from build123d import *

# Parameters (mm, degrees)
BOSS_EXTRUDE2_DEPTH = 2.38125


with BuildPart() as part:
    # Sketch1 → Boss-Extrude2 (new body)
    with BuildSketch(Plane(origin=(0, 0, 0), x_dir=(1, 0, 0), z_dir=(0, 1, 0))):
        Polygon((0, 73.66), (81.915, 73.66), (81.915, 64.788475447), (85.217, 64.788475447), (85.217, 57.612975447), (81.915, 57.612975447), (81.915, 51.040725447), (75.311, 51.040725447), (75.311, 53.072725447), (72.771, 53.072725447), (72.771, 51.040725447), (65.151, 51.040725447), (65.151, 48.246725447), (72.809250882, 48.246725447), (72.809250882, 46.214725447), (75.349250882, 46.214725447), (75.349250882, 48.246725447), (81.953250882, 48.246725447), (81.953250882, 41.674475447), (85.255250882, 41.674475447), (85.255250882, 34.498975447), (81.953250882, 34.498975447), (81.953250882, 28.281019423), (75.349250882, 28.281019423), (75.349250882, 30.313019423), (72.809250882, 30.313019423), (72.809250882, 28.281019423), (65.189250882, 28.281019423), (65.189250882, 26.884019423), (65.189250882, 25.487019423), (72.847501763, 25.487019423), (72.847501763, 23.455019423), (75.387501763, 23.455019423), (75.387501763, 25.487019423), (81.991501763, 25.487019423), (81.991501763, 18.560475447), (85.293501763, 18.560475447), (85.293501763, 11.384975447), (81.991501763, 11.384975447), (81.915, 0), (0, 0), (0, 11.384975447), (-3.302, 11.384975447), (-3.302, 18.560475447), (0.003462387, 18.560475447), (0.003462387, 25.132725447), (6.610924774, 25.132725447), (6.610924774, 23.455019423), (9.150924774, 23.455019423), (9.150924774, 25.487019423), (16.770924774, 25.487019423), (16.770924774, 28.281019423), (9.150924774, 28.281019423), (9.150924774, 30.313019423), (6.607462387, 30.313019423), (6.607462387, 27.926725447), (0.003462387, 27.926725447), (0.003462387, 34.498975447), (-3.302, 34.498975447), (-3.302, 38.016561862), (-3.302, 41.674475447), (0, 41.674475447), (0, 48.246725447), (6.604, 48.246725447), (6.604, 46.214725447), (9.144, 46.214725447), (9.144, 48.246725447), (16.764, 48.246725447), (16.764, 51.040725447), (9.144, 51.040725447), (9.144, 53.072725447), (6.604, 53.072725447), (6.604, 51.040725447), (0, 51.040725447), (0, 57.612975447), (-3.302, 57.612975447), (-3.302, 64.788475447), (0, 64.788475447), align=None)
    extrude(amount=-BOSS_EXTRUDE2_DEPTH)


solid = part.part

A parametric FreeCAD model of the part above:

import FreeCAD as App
import Part
import Sketcher
from FreeCAD import Vector
Q = App.Units.Quantity

doc = App.newDocument("Part")
body = doc.addObject("PartDesign::Body", "Body")

sketch1 = body.newObject("Sketcher::SketchObject", "Sketch")
sketch1.AttachmentSupport = (doc.getObject("XZ_Plane"), [""])
sketch1.MapMode = "FlatFace"
sketch1.addGeometry([
    Part.LineSegment(Vector(81.9, -73.7, 0), Vector(0, -73.7, 0)),
    Part.LineSegment(Vector(0, -73.7, 0), Vector(0, -64.8, 0)),
    Part.LineSegment(Vector(0, -64.8, 0), Vector(-3.3, -64.8, 0)),
    Part.LineSegment(Vector(-3.3, -64.8, 0), Vector(-3.3, -57.6, 0)),
    Part.LineSegment(Vector(-3.3, -57.6, 0), Vector(0, -57.6, 0)),
    Part.LineSegment(Vector(0, -57.6, 0), Vector(0, -51, 0)),
    Part.LineSegment(Vector(0, -51, 0), Vector(6.6, -51, 0)),
    Part.LineSegment(Vector(6.6, -51, 0), Vector(6.6, -53.1, 0)),
    Part.LineSegment(Vector(6.6, -53.1, 0), Vector(9.1, -53.1, 0)),
    Part.LineSegment(Vector(9.1, -53.1, 0), Vector(9.1, -51, 0)),
    Part.LineSegment(Vector(9.1, -51, 0), Vector(16.8, -51, 0)),
    Part.LineSegment(Vector(16.8, -51, 0), Vector(16.8, -48.2, 0)),
    Part.LineSegment(Vector(16.8, -48.2, 0), Vector(9.1, -48.2, 0)),
    Part.LineSegment(Vector(9.1, -48.2, 0), Vector(9.1, -46.2, 0)),
    Part.LineSegment(Vector(9.1, -46.2, 0), Vector(6.6, -46.2, 0)),
    Part.LineSegment(Vector(6.6, -46.2, 0), Vector(6.6, -48.2, 0)),
    Part.LineSegment(Vector(6.6, -48.2, 0), Vector(0, -48.2, 0)),
    Part.LineSegment(Vector(0, -48.2, 0), Vector(0, -41.7, 0)),
    Part.LineSegment(Vector(0, -41.7, 0), Vector(-3.3, -41.7, 0)),
    Part.LineSegment(Vector(-3.3, -41.7, 0), Vector(-3.3, -34.5, 0)),
    Part.LineSegment(Vector(-3.3, -34.5, 0), Vector(0, -34.5, 0)),
    Part.LineSegment(Vector(0, -34.5, 0), Vector(0, -27.9, 0)),
    Part.LineSegment(Vector(0, -27.9, 0), Vector(6.6, -27.9, 0)),
    Part.LineSegment(Vector(6.6, -27.9, 0), Vector(6.6, -30.3, 0)),
    Part.LineSegment(Vector(6.6, -30.3, 0), Vector(9.2, -30.3, 0)),
    Part.LineSegment(Vector(9.2, -30.3, 0), Vector(9.2, -28.3, 0)),
    Part.LineSegment(Vector(9.2, -28.3, 0), Vector(16.8, -28.3, 0)),
    Part.LineSegment(Vector(16.8, -28.3, 0), Vector(16.8, -25.5, 0)),
    Part.LineSegment(Vector(16.8, -25.5, 0), Vector(9.2, -25.5, 0)),
    Part.LineSegment(Vector(9.2, -25.5, 0), Vector(9.2, -23.5, 0)),
    Part.LineSegment(Vector(9.2, -23.5, 0), Vector(6.6, -23.5, 0)),
    Part.LineSegment(Vector(6.6, -23.5, 0), Vector(6.6, -25.1, 0)),
    Part.LineSegment(Vector(6.6, -25.1, 0), Vector(0, -25.1, 0)),
    Part.LineSegment(Vector(0, -25.1, 0), Vector(0, -18.6, 0)),
    Part.LineSegment(Vector(0, -18.6, 0), Vector(-3.3, -18.6, 0)),
    Part.LineSegment(Vector(-3.3, -18.6, 0), Vector(-3.3, -11.4, 0)),
    Part.LineSegment(Vector(-3.3, -11.4, 0), Vector(0, -11.4, 0)),
    Part.LineSegment(Vector(0, -11.4, 0), Vector(0, 0, 0)),
    Part.LineSegment(Vector(0, 0, 0), Vector(81.9, 0, 0)),
    Part.LineSegment(Vector(81.9, 0, 0), Vector(82, -11.4, 0)),
    Part.LineSegment(Vector(82, -11.4, 0), Vector(85.3, -11.4, 0)),
    Part.LineSegment(Vector(85.3, -11.4, 0), Vector(85.3, -18.6, 0)),
    Part.LineSegment(Vector(85.3, -18.6, 0), Vector(82, -18.6, 0)),
    Part.LineSegment(Vector(82, -18.6, 0), Vector(82, -25.5, 0)),
    Part.LineSegment(Vector(82, -25.5, 0), Vector(75.4, -25.5, 0)),
    Part.LineSegment(Vector(75.4, -25.5, 0), Vector(75.4, -23.5, 0)),
    Part.LineSegment(Vector(75.4, -23.5, 0), Vector(72.8, -23.5, 0)),
    Part.LineSegment(Vector(72.8, -23.5, 0), Vector(72.8, -25.5, 0)),
    Part.LineSegment(Vector(72.8, -25.5, 0), Vector(65.2, -25.5, 0)),
    Part.LineSegment(Vector(65.2, -25.5, 0), Vector(65.2, -28.3, 0)),
    Part.LineSegment(Vector(65.2, -28.3, 0), Vector(72.8, -28.3, 0)),
    Part.LineSegment(Vector(72.8, -28.3, 0), Vector(72.8, -30.3, 0)),
    Part.LineSegment(Vector(72.8, -30.3, 0), Vector(75.3, -30.3, 0)),
    Part.LineSegment(Vector(75.3, -30.3, 0), Vector(75.3, -28.3, 0)),
    Part.LineSegment(Vector(75.3, -28.3, 0), Vector(82, -28.3, 0)),
    Part.LineSegment(Vector(82, -28.3, 0), Vector(82, -34.5, 0)),
    Part.LineSegment(Vector(82, -34.5, 0), Vector(85.3, -34.5, 0)),
    Part.LineSegment(Vector(85.3, -34.5, 0), Vector(85.3, -41.7, 0)),
    Part.LineSegment(Vector(85.3, -41.7, 0), Vector(82, -41.7, 0)),
    Part.LineSegment(Vector(82, -41.7, 0), Vector(82, -48.2, 0)),
    Part.LineSegment(Vector(82, -48.2, 0), Vector(75.3, -48.2, 0)),
    Part.LineSegment(Vector(75.3, -48.2, 0), Vector(75.3, -46.2, 0)),
    Part.LineSegment(Vector(75.3, -46.2, 0), Vector(72.8, -46.2, 0)),
    Part.LineSegment(Vector(72.8, -46.2, 0), Vector(72.8, -48.2, 0)),
    Part.LineSegment(Vector(72.8, -48.2, 0), Vector(65.2, -48.2, 0)),
    Part.LineSegment(Vector(65.2, -48.2, 0), Vector(65.2, -51, 0)),
    Part.LineSegment(Vector(65.2, -51, 0), Vector(72.8, -51, 0)),
    Part.LineSegment(Vector(72.8, -51, 0), Vector(72.8, -53.1, 0)),
    Part.LineSegment(Vector(72.8, -53.1, 0), Vector(75.3, -53.1, 0)),
    Part.LineSegment(Vector(75.3, -53.1, 0), Vector(75.3, -51, 0)),
    Part.LineSegment(Vector(75.3, -51, 0), Vector(81.9, -51, 0)),
    Part.LineSegment(Vector(81.9, -51, 0), Vector(81.9, -57.6, 0)),
    Part.LineSegment(Vector(81.9, -57.6, 0), Vector(85.2, -57.6, 0)),
    Part.LineSegment(Vector(85.2, -57.6, 0), Vector(85.2, -64.8, 0)),
    Part.LineSegment(Vector(85.2, -64.8, 0), Vector(81.9, -64.8, 0)),
    Part.LineSegment(Vector(81.9, -64.8, 0), Vector(81.9, -73.7, 0)),
], False)
sketch1.addConstraint([
    Sketcher.Constraint("Coincident", 0, 2, 1, 1),
    Sketcher.Constraint("Coincident", 1, 2, 2, 1),
    Sketcher.Constraint("Coincident", 2, 2, 3, 1),
    Sketcher.Constraint("Coincident", 3, 2, 4, 1),
    Sketcher.Constraint("Coincident", 4, 2, 5, 1),
    Sketcher.Constraint("Coincident", 5, 2, 6, 1),
    Sketcher.Constraint("Coincident", 6, 2, 7, 1),
    Sketcher.Constraint("Coincident", 7, 2, 8, 1),
    Sketcher.Constraint("Coincident", 8, 2, 9, 1),
    Sketcher.Constraint("Coincident", 9, 2, 10, 1),
    Sketcher.Constraint("Coincident", 10, 2, 11, 1),
    Sketcher.Constraint("Coincident", 11, 2, 12, 1),
    Sketcher.Constraint("Coincident", 12, 2, 13, 1),
    Sketcher.Constraint("Coincident", 13, 2, 14, 1),
    Sketcher.Constraint("Coincident", 14, 2, 15, 1),
    Sketcher.Constraint("Coincident", 15, 2, 16, 1),
    Sketcher.Constraint("Coincident", 16, 2, 17, 1),
    Sketcher.Constraint("Coincident", 17, 2, 18, 1),
    Sketcher.Constraint("Coincident", 18, 2, 19, 1),
    Sketcher.Constraint("Coincident", 19, 2, 20, 1),
    Sketcher.Constraint("Coincident", 20, 2, 21, 1),
    Sketcher.Constraint("Coincident", 21, 2, 22, 1),
    Sketcher.Constraint("Coincident", 22, 2, 23, 1),
    Sketcher.Constraint("Coincident", 23, 2, 24, 1),
    Sketcher.Constraint("Coincident", 24, 2, 25, 1),
    Sketcher.Constraint("Coincident", 25, 2, 26, 1),
    Sketcher.Constraint("Coincident", 26, 2, 27, 1),
    Sketcher.Constraint("Coincident", 27, 2, 28, 1),
    Sketcher.Constraint("Coincident", 28, 2, 29, 1),
    Sketcher.Constraint("Coincident", 29, 2, 30, 1),
    Sketcher.Constraint("Coincident", 30, 2, 31, 1),
    Sketcher.Constraint("Coincident", 31, 2, 32, 1),
    Sketcher.Constraint("Coincident", 32, 2, 33, 1),
    Sketcher.Constraint("Coincident", 33, 2, 34, 1),
    Sketcher.Constraint("Coincident", 34, 2, 35, 1),
    Sketcher.Constraint("Coincident", 35, 2, 36, 1),
    Sketcher.Constraint("Coincident", 36, 2, 37, 1),
    Sketcher.Constraint("Coincident", 37, 2, 38, 1),
    Sketcher.Constraint("Coincident", 38, 2, 39, 1),
    Sketcher.Constraint("Coincident", 39, 2, 40, 1),
    Sketcher.Constraint("Coincident", 40, 2, 41, 1),
    Sketcher.Constraint("Coincident", 41, 2, 42, 1),
    Sketcher.Constraint("Coincident", 42, 2, 43, 1),
    Sketcher.Constraint("Coincident", 43, 2, 44, 1),
    Sketcher.Constraint("Coincident", 44, 2, 45, 1),
    Sketcher.Constraint("Coincident", 45, 2, 46, 1),
    Sketcher.Constraint("Coincident", 46, 2, 47, 1),
    Sketcher.Constraint("Coincident", 47, 2, 48, 1),
    Sketcher.Constraint("Coincident", 48, 2, 49, 1),
    Sketcher.Constraint("Coincident", 49, 2, 50, 1),
    Sketcher.Constraint("Coincident", 50, 2, 51, 1),
    Sketcher.Constraint("Coincident", 51, 2, 52, 1),
    Sketcher.Constraint("Coincident", 52, 2, 53, 1),
    Sketcher.Constraint("Coincident", 53, 2, 54, 1),
    Sketcher.Constraint("Coincident", 54, 2, 55, 1),
    Sketcher.Constraint("Coincident", 55, 2, 56, 1),
    Sketcher.Constraint("Coincident", 56, 2, 57, 1),
    Sketcher.Constraint("Coincident", 57, 2, 58, 1),
    Sketcher.Constraint("Coincident", 58, 2, 59, 1),
    Sketcher.Constraint("Coincident", 59, 2, 60, 1),
    Sketcher.Constraint("Coincident", 60, 2, 61, 1),
    Sketcher.Constraint("Coincident", 61, 2, 62, 1),
    Sketcher.Constraint("Coincident", 62, 2, 63, 1),
    Sketcher.Constraint("Coincident", 63, 2, 64, 1),
    Sketcher.Constraint("Coincident", 64, 2, 65, 1),
    Sketcher.Constraint("Coincident", 65, 2, 66, 1),
    Sketcher.Constraint("Coincident", 66, 2, 67, 1),
    Sketcher.Constraint("Coincident", 67, 2, 68, 1),
    Sketcher.Constraint("Coincident", 68, 2, 69, 1),
    Sketcher.Constraint("Coincident", 69, 2, 70, 1),
    Sketcher.Constraint("Coincident", 70, 2, 71, 1),
    Sketcher.Constraint("Coincident", 71, 2, 72, 1),
    Sketcher.Constraint("Coincident", 72, 2, 73, 1),
    Sketcher.Constraint("Coincident", 73, 2, 74, 1),
    Sketcher.Constraint("Coincident", 74, 2, 75, 1),
    Sketcher.Constraint("Coincident", 75, 2, 0, 1),
    Sketcher.Constraint("Horizontal", 0),
    Sketcher.Constraint("Vertical", 1),
    Sketcher.Constraint("Horizontal", 2),
    Sketcher.Constraint("Vertical", 3),
    Sketcher.Constraint("Horizontal", 4),
    Sketcher.Constraint("Vertical", 5),
    Sketcher.Constraint("Horizontal", 6),
    Sketcher.Constraint("Vertical", 7),
    Sketcher.Constraint("Horizontal", 8),
    Sketcher.Constraint("Vertical", 9),
    Sketcher.Constraint("Horizontal", 10),
    Sketcher.Constraint("Vertical", 11),
    Sketcher.Constraint("Horizontal", 12),
    Sketcher.Constraint("Vertical", 13),
    Sketcher.Constraint("Horizontal", 14),
    Sketcher.Constraint("Vertical", 15),
    Sketcher.Constraint("Horizontal", 16),
    Sketcher.Constraint("Vertical", 17),
    Sketcher.Constraint("Horizontal", 18),
    Sketcher.Constraint("Vertical", 19),
    Sketcher.Constraint("Horizontal", 20),
    Sketcher.Constraint("Vertical", 21),
    Sketcher.Constraint("Horizontal", 22),
    Sketcher.Constraint("Vertical", 23),
    Sketcher.Constraint("Horizontal", 24),
    Sketcher.Constraint("Vertical", 25),
    Sketcher.Constraint("Horizontal", 26),
    Sketcher.Constraint("Vertical", 27),
    Sketcher.Constraint("Horizontal", 28),
    Sketcher.Constraint("Vertical", 29),
    Sketcher.Constraint("Horizontal", 30),
    Sketcher.Constraint("Vertical", 31),
    Sketcher.Constraint("Horizontal", 32),
    Sketcher.Constraint("Vertical", 33),
    Sketcher.Constraint("Horizontal", 34),
    Sketcher.Constraint("Vertical", 35),
    Sketcher.Constraint("Horizontal", 36),
    Sketcher.Constraint("Vertical", 37),
    Sketcher.Constraint("Horizontal", 38),
    Sketcher.Constraint("Horizontal", 40),
    Sketcher.Constraint("Vertical", 41),
    Sketcher.Constraint("Horizontal", 42),
    Sketcher.Constraint("Vertical", 43),
    Sketcher.Constraint("Horizontal", 44),
    Sketcher.Constraint("Vertical", 45),
    Sketcher.Constraint("Horizontal", 46),
    Sketcher.Constraint("Vertical", 47),
    Sketcher.Constraint("Horizontal", 48),
    Sketcher.Constraint("Vertical", 49),
    Sketcher.Constraint("Horizontal", 50),
    Sketcher.Constraint("Vertical", 51),
    Sketcher.Constraint("Horizontal", 52),
    Sketcher.Constraint("Vertical", 53),
    Sketcher.Constraint("Horizontal", 54),
    Sketcher.Constraint("Vertical", 55),
    Sketcher.Constraint("Horizontal", 56),
    Sketcher.Constraint("Vertical", 57),
    Sketcher.Constraint("Horizontal", 58),
    Sketcher.Constraint("Vertical", 59),
    Sketcher.Constraint("Horizontal", 60),
    Sketcher.Constraint("Vertical", 61),
    Sketcher.Constraint("Horizontal", 62),
    Sketcher.Constraint("Vertical", 63),
    Sketcher.Constraint("Horizontal", 64),
    Sketcher.Constraint("Vertical", 65),
    Sketcher.Constraint("Horizontal", 66),
    Sketcher.Constraint("Vertical", 67),
    Sketcher.Constraint("Horizontal", 68),
    Sketcher.Constraint("Vertical", 69),
    Sketcher.Constraint("Horizontal", 70),
    Sketcher.Constraint("Vertical", 71),
    Sketcher.Constraint("Horizontal", 72),
    Sketcher.Constraint("Vertical", 73),
    Sketcher.Constraint("Horizontal", 74),
    Sketcher.Constraint("Vertical", 75),
    Sketcher.Constraint("Coincident", 37, 2, -1, 1),
    Sketcher.Constraint("PointOnObject", 0, 2, -2),
    Sketcher.Constraint("PointOnObject", 4, 2, -2),
    Sketcher.Constraint("PointOnObject", 16, 2, -2),
    Sketcher.Constraint("Horizontal", 6, 2, 9, 2),
    Sketcher.Constraint("Horizontal", 12, 2, 15, 2),
    Sketcher.Constraint("Horizontal", 36, 2, 39, 2),
    Sketcher.Constraint("Horizontal", 34, 2, 41, 2),
    Sketcher.Constraint("Horizontal", 28, 2, 43, 2),
    Sketcher.Constraint("Horizontal", 30, 2, 45, 2),
    Sketcher.Constraint("Horizontal", 44, 2, 47, 2),
    Sketcher.Constraint("Horizontal", 26, 2, 49, 2),
    Sketcher.Constraint("Horizontal", 24, 2, 51, 2),
    Sketcher.Constraint("Horizontal", 50, 2, 53, 2),
    Sketcher.Constraint("Horizontal", 20, 2, 55, 2),
    Sketcher.Constraint("Horizontal", 18, 2, 57, 2),
    Sketcher.Constraint("Horizontal", 16, 2, 59, 2),
    Sketcher.Constraint("Horizontal", 14, 2, 61, 2),
    Sketcher.Constraint("Horizontal", 60, 2, 63, 2),
    Sketcher.Constraint("Horizontal", 10, 2, 65, 2),
    Sketcher.Constraint("Horizontal", 8, 2, 67, 2),
    Sketcher.Constraint("Horizontal", 66, 2, 69, 2),
    Sketcher.Constraint("Horizontal", 4, 2, 71, 2),
    Sketcher.Constraint("Horizontal", 2, 2, 73, 2),
    Sketcher.Constraint("Vertical", 9, 2, 12, 2),
    Sketcher.Constraint("Vertical", 7, 2, 14, 2),
    Sketcher.Constraint("Vertical", 3, 2, 18, 2),
    Sketcher.Constraint("Vertical", 25, 2, 28, 2),
    Sketcher.Constraint("Vertical", 21, 2, 32, 2),
    Sketcher.Constraint("Vertical", 19, 2, 34, 2),
    Sketcher.Constraint("Vertical", 39, 2, 42, 2),
    Sketcher.Constraint("Vertical", 55, 2, 58, 2),
    Sketcher.Constraint("Vertical", 53, 2, 60, 2),
    Sketcher.Constraint("Vertical", 51, 2, 62, 2),
    Sketcher.Constraint("Vertical", 38, 2, 70, 2),
    Sketcher.Constraint("Vertical", 71, 2, 74, 2),
    Sketcher.Constraint("Equal", 16, 22),
    Sketcher.Constraint("Equal", 12, 26),
    Sketcher.Constraint("Equal", 14, 30),
    Sketcher.Constraint("Equal", 36, 40),
    Sketcher.Constraint("Equal", 22, 44),
    Sketcher.Constraint("Equal", 30, 46),
    Sketcher.Constraint("Equal", 28, 50),
    Sketcher.Constraint("Equal", 46, 52),
    Sketcher.Constraint("Equal", 44, 54),
    Sketcher.Constraint("Equal", 42, 56),
    Sketcher.Constraint("Equal", 48, 64),
    Sketcher.Constraint("Equal", 50, 66),
    Sketcher.Constraint("Equal", 62, 68),
    Sketcher.Constraint("Equal", 60, 70),
    Sketcher.Constraint("Equal", 58, 72),
    Sketcher.Constraint("Equal", 9, 13),
    Sketcher.Constraint("Equal", 5, 17),
    Sketcher.Constraint("Equal", 3, 19),
    Sketcher.Constraint("Equal", 17, 21),
    Sketcher.Constraint("Equal", 15, 25),
    Sketcher.Constraint("Equal", 11, 27),
    Sketcher.Constraint("Equal", 25, 29),
    Sketcher.Constraint("Equal", 21, 33),
    Sketcher.Constraint("Equal", 19, 35),
    Sketcher.Constraint("DistanceX", 8, 1, 8, 2, Q("0.1 in")),
    Sketcher.Constraint("DistanceX", 10, 1, 10, 2, Q("0.3 in")),
    Sketcher.Constraint("DistanceX", 2, 2, 2, 1, Q("0.13 in")),
    Sketcher.Constraint("DistanceX", 6, 1, 6, 2, Q("0.26 in")),
    Sketcher.Constraint("DistanceY", 7, 2, 7, 1, Q("0.08 in")),
    Sketcher.Constraint("DistanceY", 11, 1, 11, 2, Q("0.11 in")),
    Sketcher.Constraint("DistanceY", 0, 2, -1, 1, Q("2.9 in")),
    Sketcher.Constraint("DistanceX", 0, 2, 0, 1, Q("3.225 in")),
    Sketcher.Constraint("DistanceY", 3, 1, 3, 2, Q("0.2825 in")),
    Sketcher.Constraint("DistanceX", 48, 2, 48, 1, Q("7.658251 mm")),
    Sketcher.Constraint("DistanceY", 5, 1, 5, 2, Q("6.57225 mm")),
    Sketcher.Constraint("DistanceX", 20, 1, 20, 2, Q("3.305462 mm")),
    Sketcher.Constraint("DistanceX", 24, 1, 24, 2, Q("2.543462 mm")),
    Sketcher.Constraint("DistanceY", 1, 1, 1, 2, Q("8.871525 mm")),
    Sketcher.Constraint("DistanceY", 23, 2, 23, 1, Q("2.386294 mm")),
    Sketcher.Constraint("DistanceY", 31, 2, 31, 1, Q("1.677706 mm")),
])
pad1 = body.newObject("PartDesign::Pad", "Pad")
pad1.Profile = sketch1
pad1.Length = Q("0.09375 in")

doc.recompute()
